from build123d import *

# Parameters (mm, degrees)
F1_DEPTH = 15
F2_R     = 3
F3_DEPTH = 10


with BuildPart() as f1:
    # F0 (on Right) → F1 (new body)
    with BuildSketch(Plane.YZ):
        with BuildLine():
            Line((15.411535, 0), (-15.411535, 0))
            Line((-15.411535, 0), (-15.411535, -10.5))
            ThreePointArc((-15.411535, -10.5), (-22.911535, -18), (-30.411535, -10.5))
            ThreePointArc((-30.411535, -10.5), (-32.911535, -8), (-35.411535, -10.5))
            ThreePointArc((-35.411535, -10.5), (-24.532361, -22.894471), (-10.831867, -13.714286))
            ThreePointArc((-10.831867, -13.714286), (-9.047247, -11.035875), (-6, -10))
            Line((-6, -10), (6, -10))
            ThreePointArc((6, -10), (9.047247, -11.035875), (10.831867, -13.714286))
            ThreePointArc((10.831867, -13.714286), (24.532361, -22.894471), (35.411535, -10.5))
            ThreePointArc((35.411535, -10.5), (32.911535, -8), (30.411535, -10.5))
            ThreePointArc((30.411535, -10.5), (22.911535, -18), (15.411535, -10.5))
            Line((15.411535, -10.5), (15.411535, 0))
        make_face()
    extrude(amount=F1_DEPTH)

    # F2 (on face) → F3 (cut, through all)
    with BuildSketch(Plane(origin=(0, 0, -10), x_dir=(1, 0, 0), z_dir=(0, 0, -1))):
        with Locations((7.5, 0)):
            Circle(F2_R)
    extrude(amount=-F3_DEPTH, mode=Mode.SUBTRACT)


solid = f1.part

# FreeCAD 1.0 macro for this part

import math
import FreeCAD as App
import Part
import Sketcher
from FreeCAD import Vector
Q = App.Units.Quantity

doc = App.newDocument("Part")
body = doc.addObject("PartDesign::Body", "Body")

# Sketch on YZ plane
sketch1 = body.newObject("Sketcher::SketchObject", "Sketch")
sketch1.AttachmentSupport = (doc.getObject("YZ_Plane"), [""])
sketch1.MapMode = "FlatFace"
sketch1.addGeometry([
    Part.LineSegment(Vector(15.411535, 0, 0), Vector(-15.411535, 0, 0)),  # 0
    Part.LineSegment(Vector(-15.411535, 0, 0), Vector(-15.411535, -10.5, 0)),  # 1
    Part.ArcOfCircle(Part.Circle(Vector(-22.911535, -10.5, 0), Vector(0, 0, 1), 7.5), math.radians(180), math.radians(360)),  # 2
    Part.ArcOfCircle(Part.Circle(Vector(-32.911535, -10.5, 0), Vector(0, 0, 1), 2.5), math.radians(0), math.radians(180)),  # 3
    Part.ArcOfCircle(Part.Circle(Vector(-22.911535, -10.499999, 0), Vector(0, 0, 1), 12.5), math.radians(-179.999996), math.radians(-14.900601)),  # 4
    Part.ArcOfCircle(Part.Circle(Vector(-6, -14.999999, 0), Vector(0, 0, 1), 4.999999), math.radians(89.999995), math.radians(165.099413)),  # 5
    Part.LineSegment(Vector(-6, -10, 0), Vector(6, -10, 0)),  # 6
    Part.ArcOfCircle(Part.Circle(Vector(6, -14.999999, 0), Vector(0, 0, 1), 4.999999), math.radians(14.900587), math.radians(90.000005)),  # 7
    Part.ArcOfCircle(Part.Circle(Vector(22.911535, -10.499999, 0), Vector(0, 0, 1), 12.5), math.radians(-165.099399), math.radians(-0.000004)),  # 8
    Part.ArcOfCircle(Part.Circle(Vector(32.911535, -10.5, 0), Vector(0, 0, 1), 2.5), math.radians(0), math.radians(180)),  # 9
    Part.ArcOfCircle(Part.Circle(Vector(22.911535, -10.5, 0), Vector(0, 0, 1), 7.5), math.radians(180), math.radians(360)),  # 10
    Part.LineSegment(Vector(15.411535, -10.5, 0), Vector(15.411535, 0, 0)),  # 11
], False)
sketch1.addConstraint([
    Sketcher.Constraint("Coincident", 0, 2, 1, 1),
    Sketcher.Constraint("Tangent", 1, 2, 2, 2),
    Sketcher.Constraint("Tangent", 2, 1, 3, 1),
    Sketcher.Constraint("Tangent", 3, 2, 4, 1),
    Sketcher.Constraint("Tangent", 4, 2, 5, 2),
    Sketcher.Constraint("Tangent", 5, 1, 6, 1),
    Sketcher.Constraint("Tangent", 6, 2, 7, 2),
    Sketcher.Constraint("Tangent", 7, 1, 8, 1),
    Sketcher.Constraint("Tangent", 8, 2, 9, 1),
    Sketcher.Constraint("Tangent", 9, 2, 10, 2),
    Sketcher.Constraint("Tangent", 10, 1, 11, 1),
    Sketcher.Constraint("Coincident", 11, 2, 0, 1),
    Sketcher.Constraint("Horizontal", 0),
    Sketcher.Constraint("Vertical", 1),
    Sketcher.Constraint("Horizontal", 6),
    Sketcher.Constraint("Vertical", 11),
    Sketcher.Constraint("Coincident", 4, 3, 2, 3),
    Sketcher.Constraint("Coincident", 10, 3, 8, 3),
    Sketcher.Constraint("Equal", 5, 7),
    Sketcher.Constraint("Equal", 4, 8),
    Sketcher.Constraint("Equal", 3, 9),
    Sketcher.Constraint("Symmetric", 0, 2, 11, 2, -1, 1),
    Sketcher.Constraint("Horizontal", 2, 3, 3, 3),
    Sketcher.Constraint("Horizontal", 4, 3, 8, 3),
    Sketcher.Constraint("Horizontal", 8, 3, 9, 3),
    Sketcher.Constraint("Radius", 5, Q("4.999999 mm")),
    Sketcher.Constraint("Radius", 2, Q("7.5 mm")),
    Sketcher.Constraint("Radius", 3, Q("2.5 mm")),
    Sketcher.Constraint("DistanceX", 6, 1, 6, 2, Q("12 mm")),
    Sketcher.Constraint("DistanceY", 1, 2, 1, 1, Q("10.5 mm")),
    Sketcher.Constraint("DistanceY", 5, 3, -1, 1, Q("14.999999 mm")),
])
pad1 = body.newObject("PartDesign::Pad", "Pad")
pad1.Profile = sketch1
pad1.Length = 15

# Sketch on XY plane
sketch2 = body.newObject("Sketcher::SketchObject", "Sketch001")
sketch2.AttachmentSupport = (doc.getObject("XY_Plane"), [""])
sketch2.MapMode = "FlatFace"
sketch2.AttachmentOffset = App.Placement(Vector(0, 0, -10), App.Rotation())
sketch2.addGeometry(Part.Circle(Vector(7.5, 0, 0), Vector(0, 0, 1), 3), False)
sketch2.addConstraint([
    Sketcher.Constraint("PointOnObject", 0, 3, -1),
    Sketcher.Constraint("Diameter", 0, Q("6 mm")),
    Sketcher.Constraint("DistanceX", -1, 1, 0, 3, Q("7.5 mm")),
])
pocket1 = body.newObject("PartDesign::Pocket", "Pocket")
pocket1.Profile = sketch2
pocket1.Type = "ThroughAll"
pocket1.Reversed = True

doc.recompute()
